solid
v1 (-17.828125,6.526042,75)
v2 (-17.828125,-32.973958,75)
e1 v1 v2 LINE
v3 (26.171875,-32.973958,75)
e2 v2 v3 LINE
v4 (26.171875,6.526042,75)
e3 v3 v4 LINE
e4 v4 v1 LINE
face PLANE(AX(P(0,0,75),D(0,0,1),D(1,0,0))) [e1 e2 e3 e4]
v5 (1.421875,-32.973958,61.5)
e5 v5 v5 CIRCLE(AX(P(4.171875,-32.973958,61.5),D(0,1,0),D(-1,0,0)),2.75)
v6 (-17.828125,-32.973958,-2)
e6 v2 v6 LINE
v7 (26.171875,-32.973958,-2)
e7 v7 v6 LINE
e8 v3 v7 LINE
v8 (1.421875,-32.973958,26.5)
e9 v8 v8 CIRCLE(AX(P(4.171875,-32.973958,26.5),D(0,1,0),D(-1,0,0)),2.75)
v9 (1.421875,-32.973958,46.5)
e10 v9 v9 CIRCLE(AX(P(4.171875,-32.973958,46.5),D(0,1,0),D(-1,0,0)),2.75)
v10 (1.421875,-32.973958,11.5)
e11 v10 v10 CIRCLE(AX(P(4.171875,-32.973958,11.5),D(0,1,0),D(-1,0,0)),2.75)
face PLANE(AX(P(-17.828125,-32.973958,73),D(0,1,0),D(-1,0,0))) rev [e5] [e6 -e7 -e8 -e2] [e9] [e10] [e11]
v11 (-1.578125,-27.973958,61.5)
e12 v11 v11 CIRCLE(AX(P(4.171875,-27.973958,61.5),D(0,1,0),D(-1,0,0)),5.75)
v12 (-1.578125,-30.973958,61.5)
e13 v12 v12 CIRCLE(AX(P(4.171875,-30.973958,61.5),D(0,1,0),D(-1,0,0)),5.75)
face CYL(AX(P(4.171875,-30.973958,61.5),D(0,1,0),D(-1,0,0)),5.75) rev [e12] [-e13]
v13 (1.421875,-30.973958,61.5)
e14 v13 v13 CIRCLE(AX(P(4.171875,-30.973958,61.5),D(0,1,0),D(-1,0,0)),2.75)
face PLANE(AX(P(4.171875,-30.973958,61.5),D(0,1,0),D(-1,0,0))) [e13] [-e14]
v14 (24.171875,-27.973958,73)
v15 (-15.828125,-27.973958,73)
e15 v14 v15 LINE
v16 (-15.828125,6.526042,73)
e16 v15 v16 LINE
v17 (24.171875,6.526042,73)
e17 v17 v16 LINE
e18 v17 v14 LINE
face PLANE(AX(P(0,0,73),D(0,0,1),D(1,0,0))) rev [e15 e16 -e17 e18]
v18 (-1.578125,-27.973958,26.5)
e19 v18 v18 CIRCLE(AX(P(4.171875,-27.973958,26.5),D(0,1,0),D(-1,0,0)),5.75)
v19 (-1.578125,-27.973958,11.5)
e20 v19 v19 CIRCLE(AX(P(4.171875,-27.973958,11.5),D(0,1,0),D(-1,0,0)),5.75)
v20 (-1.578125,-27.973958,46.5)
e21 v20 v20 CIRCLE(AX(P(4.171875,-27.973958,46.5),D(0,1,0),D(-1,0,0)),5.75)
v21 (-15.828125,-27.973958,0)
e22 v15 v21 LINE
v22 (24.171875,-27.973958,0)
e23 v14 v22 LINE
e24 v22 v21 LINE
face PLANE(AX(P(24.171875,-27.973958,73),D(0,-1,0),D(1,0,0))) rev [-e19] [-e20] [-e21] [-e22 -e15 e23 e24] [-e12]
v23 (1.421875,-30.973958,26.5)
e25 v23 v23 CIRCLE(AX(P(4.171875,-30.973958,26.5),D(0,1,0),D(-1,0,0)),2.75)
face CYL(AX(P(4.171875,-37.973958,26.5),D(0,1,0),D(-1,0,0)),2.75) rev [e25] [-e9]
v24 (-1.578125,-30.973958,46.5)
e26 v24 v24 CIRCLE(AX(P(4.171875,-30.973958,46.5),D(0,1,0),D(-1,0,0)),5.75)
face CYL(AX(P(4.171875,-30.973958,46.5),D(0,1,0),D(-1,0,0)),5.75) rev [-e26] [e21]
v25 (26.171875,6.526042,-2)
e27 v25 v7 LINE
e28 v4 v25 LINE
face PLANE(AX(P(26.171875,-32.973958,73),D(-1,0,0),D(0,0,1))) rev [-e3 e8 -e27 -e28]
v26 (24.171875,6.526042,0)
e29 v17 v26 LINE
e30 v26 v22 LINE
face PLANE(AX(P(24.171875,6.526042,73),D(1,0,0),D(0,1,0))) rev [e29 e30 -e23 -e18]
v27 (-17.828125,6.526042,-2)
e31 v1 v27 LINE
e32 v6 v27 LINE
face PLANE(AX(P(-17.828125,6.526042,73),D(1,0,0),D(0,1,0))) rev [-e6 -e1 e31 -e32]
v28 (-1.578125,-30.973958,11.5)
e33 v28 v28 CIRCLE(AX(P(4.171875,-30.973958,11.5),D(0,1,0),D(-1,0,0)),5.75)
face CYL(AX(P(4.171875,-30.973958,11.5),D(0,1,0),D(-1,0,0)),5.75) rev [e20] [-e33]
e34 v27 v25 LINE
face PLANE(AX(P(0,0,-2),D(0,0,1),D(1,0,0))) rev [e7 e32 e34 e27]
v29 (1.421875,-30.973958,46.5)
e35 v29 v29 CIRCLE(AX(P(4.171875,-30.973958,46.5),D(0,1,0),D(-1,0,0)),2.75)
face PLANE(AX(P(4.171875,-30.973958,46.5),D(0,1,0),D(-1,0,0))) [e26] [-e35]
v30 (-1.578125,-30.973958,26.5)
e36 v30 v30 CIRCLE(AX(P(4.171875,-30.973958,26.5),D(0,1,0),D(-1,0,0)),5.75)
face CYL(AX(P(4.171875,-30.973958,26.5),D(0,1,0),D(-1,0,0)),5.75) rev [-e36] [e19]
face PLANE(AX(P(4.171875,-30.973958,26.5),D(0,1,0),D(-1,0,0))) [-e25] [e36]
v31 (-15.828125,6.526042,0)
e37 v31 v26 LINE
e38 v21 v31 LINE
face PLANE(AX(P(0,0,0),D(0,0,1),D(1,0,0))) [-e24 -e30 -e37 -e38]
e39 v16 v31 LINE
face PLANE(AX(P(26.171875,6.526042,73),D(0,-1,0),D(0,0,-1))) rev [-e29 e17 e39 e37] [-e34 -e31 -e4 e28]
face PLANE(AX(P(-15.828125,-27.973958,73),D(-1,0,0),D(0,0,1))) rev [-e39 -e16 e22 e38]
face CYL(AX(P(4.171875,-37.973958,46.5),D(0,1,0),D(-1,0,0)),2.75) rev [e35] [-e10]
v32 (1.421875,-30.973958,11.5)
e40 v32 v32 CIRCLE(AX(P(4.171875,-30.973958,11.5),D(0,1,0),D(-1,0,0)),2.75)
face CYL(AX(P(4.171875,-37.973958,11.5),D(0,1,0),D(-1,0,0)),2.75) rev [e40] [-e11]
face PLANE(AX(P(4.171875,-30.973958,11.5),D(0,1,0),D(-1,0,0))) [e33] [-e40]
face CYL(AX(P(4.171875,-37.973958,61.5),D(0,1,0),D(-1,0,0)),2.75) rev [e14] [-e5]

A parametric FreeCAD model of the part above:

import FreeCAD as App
import Part
import Sketcher
from FreeCAD import Vector


def add_polygon(sketch, points):
    """Adds a closed chain of lines whose ends are joined by coincident constraints."""
    first, n = sketch.GeometryCount, len(points)
    for a, b in zip(points, points[1:] + points[:1]):
        sketch.addGeometry(Part.LineSegment(App.Vector(*a, 0), App.Vector(*b, 0)), False)
    for i in range(n):
        sketch.addConstraint(Sketcher.Constraint("Coincident", first + i, 2, first + (i + 1) % n, 1))

doc = App.newDocument("Part")
body = doc.addObject("PartDesign::Body", "Body")

# Sketch on XY plane
sketch1 = body.newObject("Sketcher::SketchObject", "Sketch")
sketch1.AttachmentSupport = (doc.getObject("XY_Plane"), [""])
sketch1.MapMode = "FlatFace"
add_polygon(sketch1, [(-17.828125, 6.526042), (-17.828125, -32.973958), (26.171875, -32.973958), (26.171875, 6.526042), (24.171875, 6.526042), (24.171875, -27.973958), (-15.828125, -27.973958), (-15.828125, 6.526042)])  # lines 0-7
sketch1.addConstraint([
    Sketcher.Constraint("Vertical", 0),
    Sketcher.Constraint("Horizontal", 1),
    Sketcher.Constraint("Vertical", 2),
    Sketcher.Constraint("Horizontal", 3),
    Sketcher.Constraint("Vertical", 4),
    Sketcher.Constraint("Horizontal", 5),
    Sketcher.Constraint("Vertical", 6),
    Sketcher.Constraint("Horizontal", 7),
    Sketcher.Constraint("Horizontal", 3, 2, 6, 2),
    Sketcher.Constraint("Equal", 3, 7),
    Sketcher.Constraint("DistanceX", 1, 1, 1, 2, 44.0),
    Sketcher.Constraint("DistanceX", 3, 2, 3, 1, 2.0),
    Sketcher.Constraint("DistanceY", 0, 2, 0, 1, 39.5),
    Sketcher.Constraint("DistanceY", 4, 2, 4, 1, 34.5),
    Sketcher.Constraint("DistanceY", 0, 2, -1, 1, 32.973958),
    Sketcher.Constraint("DistanceX", 0, 2, -1, 1, 17.828125),
])
pad1 = body.newObject("PartDesign::Pad", "Pad")
pad1.Profile = sketch1
pad1.Length = 73

# Sketch on XY plane
sketch2 = body.newObject("Sketcher::SketchObject", "Sketch001")
sketch2.AttachmentSupport = (doc.getObject("XY_Plane"), [""])
sketch2.MapMode = "FlatFace"
sketch2.AttachmentOffset = App.Placement(Vector(0, 0, 73), App.Rotation())
add_polygon(sketch2, [(-17.828125, 6.526042), (-17.828125, -32.973958), (26.171875, -32.973958), (26.171875, 6.526042)])  # lines 0-3
sketch2.addConstraint([
    Sketcher.Constraint("Vertical", 0),
    Sketcher.Constraint("Horizontal", 1),
    Sketcher.Constraint("Vertical", 2),
    Sketcher.Constraint("Horizontal", 3),
    Sketcher.Constraint("DistanceX", 1, 1, 1, 2, 44.0),
    Sketcher.Constraint("DistanceY", 0, 2, 0, 1, 39.5),
    Sketcher.Constraint("DistanceY", 0, 2, -1, 1, 32.973958),
    Sketcher.Constraint("DistanceX", 0, 2, -1, 1, 17.828125),
])
pad2 = body.newObject("PartDesign::Pad", "Pad001")
pad2.Profile = sketch2
pad2.Length = 2

# Sketch on XY plane
sketch3 = body.newObject("Sketcher::SketchObject", "Sketch002")
sketch3.AttachmentSupport = (doc.getObject("XY_Plane"), [""])
sketch3.MapMode = "FlatFace"
add_polygon(sketch3, [(26.171875, 6.526042), (26.171875, -32.973958), (-17.828125, -32.973958), (-17.828125, 6.526042)])  # lines 0-3
sketch3.addConstraint([
    Sketcher.Constraint("Vertical", 0),
    Sketcher.Constraint("Horizontal", 1),
    Sketcher.Constraint("Vertical", 2),
    Sketcher.Constraint("Horizontal", 3),
    Sketcher.Constraint("DistanceX", 1, 2, 1, 1, 44.0),
    Sketcher.Constraint("DistanceY", 0, 2, 0, 1, 39.5),
    Sketcher.Constraint("DistanceY", 0, 2, -1, 1, 32.973958),
    Sketcher.Constraint("DistanceX", -1, 1, 0, 2, 26.171875),
])
pad3 = body.newObject("PartDesign::Pad", "Pad002")
pad3.Profile = sketch3
pad3.Length = 2
pad3.Reversed = True

# Sketch on XZ plane
sketch4 = body.newObject("Sketcher::SketchObject", "Sketch003")
sketch4.AttachmentSupport = (doc.getObject("XZ_Plane"), [""])
sketch4.MapMode = "FlatFace"
sketch4.AttachmentOffset = App.Placement(Vector(0, 0, 27.973958), App.Rotation())
sketch4.addGeometry([
    Part.Circle(Vector(4.171875, 26.5, 0), Vector(0, 0, 1), 2.75),
    Part.Circle(Vector(4.171875, 46.5, 0), Vector(0, 0, 1), 2.75),
    Part.Circle(Vector(4.171875, 11.5, 0), Vector(0, 0, 1), 2.75),
    Part.Circle(Vector(4.171875, 61.5, 0), Vector(0, 0, 1), 2.75),
], False)
sketch4.addConstraint([
    Sketcher.Constraint("Equal", 0, 1),
    Sketcher.Constraint("Equal", 1, 2),
    Sketcher.Constraint("Equal", 2, 3),
    Sketcher.Constraint("Vertical", 0, 3, 1, 3),
    Sketcher.Constraint("Vertical", 1, 3, 2, 3),
    Sketcher.Constraint("Vertical", 2, 3, 3, 3),
    Sketcher.Constraint("Diameter", 0, 5.5),
    Sketcher.Constraint("DistanceY", 0, 3, 1, 3, 20.0),
    Sketcher.Constraint("DistanceY", 2, 3, 0, 3, 15.0),
    Sketcher.Constraint("DistanceY", 1, 3, 3, 3, 15.0),
    Sketcher.Constraint("DistanceY", -1, 1, 0, 3, 26.5),
    Sketcher.Constraint("DistanceX", -1, 1, 0, 3, 4.171875),
])
pocket1 = body.newObject("PartDesign::Pocket", "Pocket")
pocket1.Profile = sketch4
pocket1.Length = 10
pocket1.Reversed = True

# Sketch on XZ plane
sketch5 = body.newObject("Sketcher::SketchObject", "Sketch004")
sketch5.AttachmentSupport = (doc.getObject("XZ_Plane"), [""])
sketch5.MapMode = "FlatFace"
sketch5.AttachmentOffset = App.Placement(Vector(0, 0, 27.973958), App.Rotation())
sketch5.addGeometry([
    Part.Circle(Vector(4.171875, 61.5, 0), Vector(0, 0, 1), 5.75),  # 0
    Part.Circle(Vector(4.171875, 61.5, 0), Vector(0, 0, 1), 2.75),  # 1
    Part.Circle(Vector(4.171875, 46.5, 0), Vector(0, 0, 1), 5.75),  # 2
    Part.Circle(Vector(4.171875, 46.5, 0), Vector(0, 0, 1), 2.75),  # 3
    Part.Circle(Vector(4.171875, 26.5, 0), Vector(0, 0, 1), 5.75),  # 4
    Part.Circle(Vector(4.171875, 26.5, 0), Vector(0, 0, 1), 2.75),  # 5
    Part.Circle(Vector(4.171875, 11.5, 0), Vector(0, 0, 1), 5.75),  # 6
    Part.Circle(Vector(4.171875, 11.5, 0), Vector(0, 0, 1), 2.75),  # 7
], False)
sketch5.addConstraint([
    Sketcher.Constraint("Coincident", 1, 3, 0, 3),
    Sketcher.Constraint("Coincident", 3, 3, 2, 3),
    Sketcher.Constraint("Coincident", 5, 3, 4, 3),
    Sketcher.Constraint("Coincident", 7, 3, 6, 3),
    Sketcher.Constraint("Equal", 0, 2),
    Sketcher.Constraint("Equal", 1, 3),
    Sketcher.Constraint("Equal", 2, 4),
    Sketcher.Constraint("Equal", 3, 5),
    Sketcher.Constraint("Equal", 4, 6),
    Sketcher.Constraint("Equal", 5, 7),
    Sketcher.Constraint("Vertical", 1, 3, 2, 3),
    Sketcher.Constraint("Vertical", 3, 3, 4, 3),
    Sketcher.Constraint("Vertical", 5, 3, 6, 3),
    Sketcher.Constraint("Diameter", 0, 11.5),
    Sketcher.Constraint("Diameter", 1, 5.5),
    Sketcher.Constraint("DistanceY", 2, 3, 0, 3, 15.0),
    Sketcher.Constraint("DistanceY", 4, 3, 2, 3, 20.0),
    Sketcher.Constraint("DistanceY", 6, 3, 4, 3, 15.0),
    Sketcher.Constraint("DistanceY", -1, 1, 0, 3, 61.5),
    Sketcher.Constraint("DistanceX", -1, 1, 0, 3, 4.171875),
])
pocket2 = body.newObject("PartDesign::Pocket", "Pocket001")
pocket2.Profile = sketch5
pocket2.Length = 3
pocket2.Reversed = True

doc.recompute()
